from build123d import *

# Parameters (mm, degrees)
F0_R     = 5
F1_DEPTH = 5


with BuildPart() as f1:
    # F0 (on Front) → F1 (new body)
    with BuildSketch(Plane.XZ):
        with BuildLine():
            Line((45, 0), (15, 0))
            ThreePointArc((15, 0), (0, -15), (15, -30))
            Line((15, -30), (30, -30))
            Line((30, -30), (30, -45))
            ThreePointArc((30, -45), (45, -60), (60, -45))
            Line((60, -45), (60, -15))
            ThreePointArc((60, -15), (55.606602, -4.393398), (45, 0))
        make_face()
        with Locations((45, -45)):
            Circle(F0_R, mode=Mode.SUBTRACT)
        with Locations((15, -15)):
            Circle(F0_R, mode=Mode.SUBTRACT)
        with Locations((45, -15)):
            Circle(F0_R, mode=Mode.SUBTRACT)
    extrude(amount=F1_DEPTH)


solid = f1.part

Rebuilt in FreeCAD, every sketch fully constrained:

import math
import FreeCAD as App
import Part
import Sketcher

V = App.Vector
Q = App.Units.Quantity

doc = App.newDocument("Part")
params = doc.addObject("Spreadsheet::Sheet", "Params")
for row, (alias, value) in enumerate([
    ("sketch1_diameter", "10 mm"),
    ("sketch1_radius", "15 mm"),
    ("sketch1_width", "30 mm"),
    ("pad1_length", "5 mm"),
], start=1):
    params.set(f"A{row}", alias)
    params.set(f"B{row}", "=" + value)
    params.setAlias(f"B{row}", alias)

body = doc.addObject("PartDesign::Body", "Body")

# Sketch on XZ plane
sketch1 = body.newObject("Sketcher::SketchObject", "Sketch")
sketch1.AttachmentSupport = (doc.getObject("XZ_Plane"), [""])
sketch1.MapMode = "FlatFace"
sketch1.addGeometry(Part.LineSegment(V(45, 0, 0), V(15, 0, 0)), False)
sketch1.addGeometry(Part.ArcOfCircle(Part.Circle(V(15, -15, 0), V(0, 0, 1), 15), math.radians(90), math.radians(270)), False)
sketch1.addGeometry(Part.LineSegment(V(15, -30, 0), V(30, -30, 0)), False)
sketch1.addGeometry(Part.LineSegment(V(30, -30, 0), V(30, -45, 0)), False)
sketch1.addGeometry(Part.ArcOfCircle(Part.Circle(V(45, -45, 0), V(0, 0, 1), 15), math.radians(180), math.radians(360)), False)
sketch1.addGeometry(Part.LineSegment(V(60, -45, 0), V(60, -15, 0)), False)
sketch1.addGeometry(Part.ArcOfCircle(Part.Circle(V(45, -15, 0), V(0, 0, 1), 15), math.radians(0), math.radians(90)), False)
sketch1.addGeometry(Part.Circle(V(45, -45, 0), V(0, 0, 1), 5), False)
sketch1.addGeometry(Part.Circle(V(15, -15, 0), V(0, 0, 1), 5), False)
sketch1.addGeometry(Part.Circle(V(45, -15, 0), V(0, 0, 1), 5), False)
sketch1.addConstraint(Sketcher.Constraint("Tangent", 0, 2, 1, 1))
sketch1.addConstraint(Sketcher.Constraint("Tangent", 1, 2, 2, 1))
sketch1.addConstraint(Sketcher.Constraint("Coincident", 2, 2, 3, 1))
sketch1.addConstraint(Sketcher.Constraint("Tangent", 3, 2, 4, 1))
sketch1.addConstraint(Sketcher.Constraint("Tangent", 4, 2, 5, 1))
sketch1.addConstraint(Sketcher.Constraint("Tangent", 5, 2, 6, 1))
sketch1.addConstraint(Sketcher.Constraint("Tangent", 6, 2, 0, 1))
sketch1.addConstraint(Sketcher.Constraint("Horizontal", 0))
sketch1.addConstraint(Sketcher.Constraint("Horizontal", 2))
sketch1.addConstraint(Sketcher.Constraint("Vertical", 3))
sketch1.addConstraint(Sketcher.Constraint("Vertical", 5))
sketch1.addConstraint(Sketcher.Constraint("Coincident", 7, 3, 4, 3))
sketch1.addConstraint(Sketcher.Constraint("Coincident", 8, 3, 1, 3))
sketch1.addConstraint(Sketcher.Constraint("Coincident", 9, 3, 6, 3))
sketch1.addConstraint(Sketcher.Constraint("Equal", 1, 4))
sketch1.addConstraint(Sketcher.Constraint("Equal", 4, 6))
sketch1.addConstraint(Sketcher.Constraint("Equal", 7, 8))
sketch1.addConstraint(Sketcher.Constraint("Equal", 8, 9))
sketch1.addConstraint(Sketcher.Constraint("PointOnObject", 0, 2, -1))
sketch1.addConstraint(Sketcher.Constraint("Equal", 2, 3))
sketch1.addConstraint(Sketcher.Constraint("Diameter", 7, Q("10 mm")))
sketch1.addConstraint(Sketcher.Constraint("Radius", 1, Q("15 mm")))
sketch1.addConstraint(Sketcher.Constraint("DistanceX", 0, 2, 0, 1, Q("30 mm")))
sketch1.addConstraint(Sketcher.Constraint("DistanceX", -1, 1, 1, 3, Q("15 mm")))
sketch1.setExpression("Constraints[20]", "Params.sketch1_diameter")
sketch1.setExpression("Constraints[21]", "Params.sketch1_radius")
sketch1.setExpression("Constraints[22]", "Params.sketch1_width")
pad1 = body.newObject("PartDesign::Pad", "Pad")
pad1.Profile = sketch1
pad1.setExpression("Length", "Params.pad1_length")

doc.recompute()
